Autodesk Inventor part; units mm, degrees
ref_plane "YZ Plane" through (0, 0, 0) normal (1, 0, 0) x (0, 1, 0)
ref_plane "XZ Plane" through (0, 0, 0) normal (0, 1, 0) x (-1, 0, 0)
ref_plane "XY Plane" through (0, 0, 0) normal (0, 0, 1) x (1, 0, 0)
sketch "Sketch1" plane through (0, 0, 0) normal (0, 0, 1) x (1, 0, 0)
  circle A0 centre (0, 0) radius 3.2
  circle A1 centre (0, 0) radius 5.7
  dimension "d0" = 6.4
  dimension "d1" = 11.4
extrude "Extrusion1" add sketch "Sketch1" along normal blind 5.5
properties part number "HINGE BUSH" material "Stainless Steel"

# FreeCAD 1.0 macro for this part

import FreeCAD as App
import Part
import Sketcher
Q = App.Units.Quantity

doc = App.newDocument("Part")
body = doc.addObject("PartDesign::Body", "Body")

# Sketch on XY plane
sketch1 = doc.addObject("Sketcher::SketchObject", "Sketch")
body.addObject(sketch1)
sketch1.AttachmentSupport = (doc.XY_Plane, [""])
sketch1.MapMode = "FlatFace"
sketch1.addGeometry(Part.Circle(App.Vector(0, 0, 0), App.Vector(0, 0, 1), 5.7), False)
sketch1.addGeometry(Part.Circle(App.Vector(0, 0, 0), App.Vector(0, 0, 1), 3.2), False)
sketch1.addConstraint(Sketcher.Constraint("Coincident", 0, 3, -1, 1))
sketch1.addConstraint(Sketcher.Constraint("Coincident", 1, 3, -1, 1))
sketch1.addConstraint(Sketcher.Constraint("Diameter", 0, Q("11.4 mm")))
sketch1.addConstraint(Sketcher.Constraint("Diameter", 1, Q("6.4 mm")))
pad1 = doc.addObject("PartDesign::Pad", "Pad")
body.addObject(pad1)
pad1.Profile = sketch1
pad1.Length = 5.5

doc.recompute()
